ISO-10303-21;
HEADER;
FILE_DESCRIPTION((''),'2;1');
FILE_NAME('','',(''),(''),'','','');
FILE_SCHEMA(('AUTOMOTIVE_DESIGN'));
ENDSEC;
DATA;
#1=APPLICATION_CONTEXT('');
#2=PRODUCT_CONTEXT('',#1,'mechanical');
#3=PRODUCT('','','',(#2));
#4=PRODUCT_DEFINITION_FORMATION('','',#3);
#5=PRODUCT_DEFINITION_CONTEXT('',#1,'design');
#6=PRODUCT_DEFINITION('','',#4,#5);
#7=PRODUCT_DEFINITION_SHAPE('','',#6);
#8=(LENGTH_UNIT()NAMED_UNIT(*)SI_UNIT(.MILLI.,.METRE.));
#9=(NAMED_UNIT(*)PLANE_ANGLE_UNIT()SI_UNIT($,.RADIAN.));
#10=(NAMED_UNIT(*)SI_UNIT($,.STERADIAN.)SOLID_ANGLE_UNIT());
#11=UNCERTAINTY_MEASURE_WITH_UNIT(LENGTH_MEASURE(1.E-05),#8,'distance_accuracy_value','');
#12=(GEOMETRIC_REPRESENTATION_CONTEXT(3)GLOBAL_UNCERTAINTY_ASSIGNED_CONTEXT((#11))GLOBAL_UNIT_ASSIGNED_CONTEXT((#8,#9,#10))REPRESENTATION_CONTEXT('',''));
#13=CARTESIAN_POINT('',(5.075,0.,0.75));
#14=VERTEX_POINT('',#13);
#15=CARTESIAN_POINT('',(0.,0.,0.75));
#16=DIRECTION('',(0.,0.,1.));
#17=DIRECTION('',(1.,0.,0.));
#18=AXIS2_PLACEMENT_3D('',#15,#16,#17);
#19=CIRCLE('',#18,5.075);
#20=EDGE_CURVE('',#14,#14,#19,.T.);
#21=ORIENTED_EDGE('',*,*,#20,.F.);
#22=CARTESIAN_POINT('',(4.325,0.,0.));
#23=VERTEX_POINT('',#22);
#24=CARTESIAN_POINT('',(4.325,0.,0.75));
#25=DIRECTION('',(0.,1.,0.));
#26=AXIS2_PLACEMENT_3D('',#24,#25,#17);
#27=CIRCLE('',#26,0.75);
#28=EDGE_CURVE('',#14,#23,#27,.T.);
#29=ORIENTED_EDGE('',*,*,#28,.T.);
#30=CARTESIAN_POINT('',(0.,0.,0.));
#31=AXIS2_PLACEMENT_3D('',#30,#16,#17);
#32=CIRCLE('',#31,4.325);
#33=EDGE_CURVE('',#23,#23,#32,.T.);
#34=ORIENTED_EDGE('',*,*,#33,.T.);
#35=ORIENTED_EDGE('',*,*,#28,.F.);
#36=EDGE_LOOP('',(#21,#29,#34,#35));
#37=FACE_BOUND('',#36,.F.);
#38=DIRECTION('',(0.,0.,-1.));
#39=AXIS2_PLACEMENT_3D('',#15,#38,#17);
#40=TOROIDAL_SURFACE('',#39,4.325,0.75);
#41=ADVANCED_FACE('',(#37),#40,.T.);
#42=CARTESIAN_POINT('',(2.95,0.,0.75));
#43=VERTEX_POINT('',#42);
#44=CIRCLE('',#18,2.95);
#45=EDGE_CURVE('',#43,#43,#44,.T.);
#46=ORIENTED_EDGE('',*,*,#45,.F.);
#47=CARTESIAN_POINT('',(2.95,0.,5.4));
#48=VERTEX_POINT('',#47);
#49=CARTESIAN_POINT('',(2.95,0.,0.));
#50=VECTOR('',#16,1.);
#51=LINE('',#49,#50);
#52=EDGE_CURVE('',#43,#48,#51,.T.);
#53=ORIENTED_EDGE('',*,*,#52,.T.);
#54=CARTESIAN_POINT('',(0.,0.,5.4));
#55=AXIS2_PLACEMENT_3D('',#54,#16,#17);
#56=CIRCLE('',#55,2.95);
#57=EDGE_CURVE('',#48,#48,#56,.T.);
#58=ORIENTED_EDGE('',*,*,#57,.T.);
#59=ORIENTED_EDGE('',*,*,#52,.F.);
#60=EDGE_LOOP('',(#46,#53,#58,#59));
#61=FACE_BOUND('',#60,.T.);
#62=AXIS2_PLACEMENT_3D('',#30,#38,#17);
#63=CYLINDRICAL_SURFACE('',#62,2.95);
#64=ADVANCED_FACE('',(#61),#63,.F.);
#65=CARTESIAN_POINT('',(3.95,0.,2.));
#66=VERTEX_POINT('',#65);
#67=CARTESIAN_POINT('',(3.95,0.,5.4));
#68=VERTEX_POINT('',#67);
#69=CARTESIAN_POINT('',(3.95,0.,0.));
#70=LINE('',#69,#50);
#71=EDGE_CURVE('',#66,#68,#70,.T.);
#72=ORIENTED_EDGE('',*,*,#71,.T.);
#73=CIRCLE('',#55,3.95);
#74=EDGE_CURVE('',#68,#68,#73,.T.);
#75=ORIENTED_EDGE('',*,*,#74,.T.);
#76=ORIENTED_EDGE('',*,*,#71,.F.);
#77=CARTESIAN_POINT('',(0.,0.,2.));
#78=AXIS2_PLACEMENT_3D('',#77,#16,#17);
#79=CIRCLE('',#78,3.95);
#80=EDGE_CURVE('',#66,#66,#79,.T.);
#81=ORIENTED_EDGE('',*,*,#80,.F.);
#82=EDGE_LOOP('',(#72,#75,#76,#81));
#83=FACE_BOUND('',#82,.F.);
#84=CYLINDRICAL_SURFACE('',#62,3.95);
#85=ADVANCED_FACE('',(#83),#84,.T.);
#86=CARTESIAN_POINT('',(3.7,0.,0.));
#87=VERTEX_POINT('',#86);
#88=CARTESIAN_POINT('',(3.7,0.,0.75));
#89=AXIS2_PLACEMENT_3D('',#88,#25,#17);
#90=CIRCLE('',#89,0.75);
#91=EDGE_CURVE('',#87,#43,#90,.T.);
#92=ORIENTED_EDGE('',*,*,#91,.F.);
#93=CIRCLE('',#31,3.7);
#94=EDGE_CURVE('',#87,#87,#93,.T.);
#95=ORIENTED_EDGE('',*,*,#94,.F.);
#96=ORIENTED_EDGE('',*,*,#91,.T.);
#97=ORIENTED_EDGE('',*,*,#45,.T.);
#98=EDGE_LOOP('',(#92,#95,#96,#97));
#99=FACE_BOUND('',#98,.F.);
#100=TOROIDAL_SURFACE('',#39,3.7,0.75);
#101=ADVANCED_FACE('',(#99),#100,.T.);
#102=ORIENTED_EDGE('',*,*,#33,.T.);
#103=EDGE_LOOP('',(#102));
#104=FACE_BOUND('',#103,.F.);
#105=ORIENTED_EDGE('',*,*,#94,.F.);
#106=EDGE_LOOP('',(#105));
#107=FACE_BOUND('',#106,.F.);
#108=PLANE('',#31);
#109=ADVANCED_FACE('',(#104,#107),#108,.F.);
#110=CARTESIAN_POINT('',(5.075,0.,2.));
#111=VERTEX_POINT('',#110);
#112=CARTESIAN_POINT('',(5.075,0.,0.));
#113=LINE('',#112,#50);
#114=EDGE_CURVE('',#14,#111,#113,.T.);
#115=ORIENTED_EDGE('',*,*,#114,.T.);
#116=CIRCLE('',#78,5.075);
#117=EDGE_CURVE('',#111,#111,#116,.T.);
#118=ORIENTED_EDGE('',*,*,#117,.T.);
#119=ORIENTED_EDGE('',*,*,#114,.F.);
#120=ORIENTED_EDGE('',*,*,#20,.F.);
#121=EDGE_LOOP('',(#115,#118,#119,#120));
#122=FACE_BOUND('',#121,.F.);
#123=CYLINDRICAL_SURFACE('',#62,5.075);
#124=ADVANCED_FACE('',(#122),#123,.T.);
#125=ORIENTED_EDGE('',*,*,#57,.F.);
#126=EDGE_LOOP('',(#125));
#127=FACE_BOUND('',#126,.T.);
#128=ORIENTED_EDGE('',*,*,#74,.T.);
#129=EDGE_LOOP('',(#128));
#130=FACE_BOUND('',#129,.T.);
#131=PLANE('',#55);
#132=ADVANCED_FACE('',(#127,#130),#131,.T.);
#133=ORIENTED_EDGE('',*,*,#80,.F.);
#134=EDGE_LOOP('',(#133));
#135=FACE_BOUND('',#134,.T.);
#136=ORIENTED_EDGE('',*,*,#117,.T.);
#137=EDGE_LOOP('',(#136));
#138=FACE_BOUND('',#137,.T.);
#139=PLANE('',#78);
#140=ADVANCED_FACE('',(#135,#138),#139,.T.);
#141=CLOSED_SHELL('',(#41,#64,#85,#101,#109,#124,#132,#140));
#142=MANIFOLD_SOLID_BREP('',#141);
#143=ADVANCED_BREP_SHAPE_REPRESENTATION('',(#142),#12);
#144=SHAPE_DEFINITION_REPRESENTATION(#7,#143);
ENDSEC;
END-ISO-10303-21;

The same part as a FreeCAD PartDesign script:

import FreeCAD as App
import Part
import Sketcher

V = App.Vector


def edges_at(feature, points):
    """Names of the edges that pass closest to the given points."""
    edges = feature.Shape.Edges
    near = lambda p: min(range(len(edges)), key=lambda i: edges[i].distToShape(Part.Vertex(*p))[0])
    return sorted({f"Edge{near(p) + 1}" for p in points})

doc = App.newDocument("Part")
body = doc.addObject("PartDesign::Body", "Body")

sketch1 = doc.addObject("Sketcher::SketchObject", "Sketch")
body.addObject(sketch1)
sketch1.AttachmentSupport = (doc.XY_Plane, [""])
sketch1.MapMode = "FlatFace"
sketch1.addGeometry([
    Part.Circle(V(0, 0, 0), V(0, 0, 1), 3.95),
    Part.Circle(V(0, 0, 0), V(0, 0, 1), 2.95),
], False)
sketch1.addConstraint([
    Sketcher.Constraint("Coincident", 0, 3, -1, 1),
    Sketcher.Constraint("Coincident", 1, 3, -1, 1),
    Sketcher.Constraint("Diameter", 0, 7.9),
    Sketcher.Constraint("Diameter", 1, 5.9),
])
pad1 = doc.addObject("PartDesign::Pad", "Pad")
body.addObject(pad1)
pad1.Profile = sketch1
pad1.Length = 5.4

sketch2 = doc.addObject("Sketcher::SketchObject", "Sketch001")
body.addObject(sketch2)
sketch2.AttachmentSupport = (doc.XY_Plane, [""])
sketch2.MapMode = "FlatFace"
sketch2.addGeometry([
    Part.Circle(V(0, 0, 0), V(0, 0, 1), 5.075),
    Part.Circle(V(0, 0, 0), V(0, 0, 1), 3.95),
], False)
sketch2.addConstraint([
    Sketcher.Constraint("Coincident", 0, 3, -1, 1),
    Sketcher.Constraint("Coincident", 1, 3, -1, 1),
    Sketcher.Constraint("Diameter", 1, 7.9),
    Sketcher.Constraint("Diameter", 0, 10.15),
])
pad2 = doc.addObject("PartDesign::Pad", "Pad001")
body.addObject(pad2)
pad2.Profile = sketch2
pad2.Length = 2
doc.recompute()

fillet = doc.addObject("PartDesign::Fillet", "Fillet")
body.addObject(fillet)
fillet.Base = (pad2, edges_at(pad2, [(-5.075, 0, 0), (-2.95, 0, 0)]))
fillet.Radius = 0.75

doc.recompute()
